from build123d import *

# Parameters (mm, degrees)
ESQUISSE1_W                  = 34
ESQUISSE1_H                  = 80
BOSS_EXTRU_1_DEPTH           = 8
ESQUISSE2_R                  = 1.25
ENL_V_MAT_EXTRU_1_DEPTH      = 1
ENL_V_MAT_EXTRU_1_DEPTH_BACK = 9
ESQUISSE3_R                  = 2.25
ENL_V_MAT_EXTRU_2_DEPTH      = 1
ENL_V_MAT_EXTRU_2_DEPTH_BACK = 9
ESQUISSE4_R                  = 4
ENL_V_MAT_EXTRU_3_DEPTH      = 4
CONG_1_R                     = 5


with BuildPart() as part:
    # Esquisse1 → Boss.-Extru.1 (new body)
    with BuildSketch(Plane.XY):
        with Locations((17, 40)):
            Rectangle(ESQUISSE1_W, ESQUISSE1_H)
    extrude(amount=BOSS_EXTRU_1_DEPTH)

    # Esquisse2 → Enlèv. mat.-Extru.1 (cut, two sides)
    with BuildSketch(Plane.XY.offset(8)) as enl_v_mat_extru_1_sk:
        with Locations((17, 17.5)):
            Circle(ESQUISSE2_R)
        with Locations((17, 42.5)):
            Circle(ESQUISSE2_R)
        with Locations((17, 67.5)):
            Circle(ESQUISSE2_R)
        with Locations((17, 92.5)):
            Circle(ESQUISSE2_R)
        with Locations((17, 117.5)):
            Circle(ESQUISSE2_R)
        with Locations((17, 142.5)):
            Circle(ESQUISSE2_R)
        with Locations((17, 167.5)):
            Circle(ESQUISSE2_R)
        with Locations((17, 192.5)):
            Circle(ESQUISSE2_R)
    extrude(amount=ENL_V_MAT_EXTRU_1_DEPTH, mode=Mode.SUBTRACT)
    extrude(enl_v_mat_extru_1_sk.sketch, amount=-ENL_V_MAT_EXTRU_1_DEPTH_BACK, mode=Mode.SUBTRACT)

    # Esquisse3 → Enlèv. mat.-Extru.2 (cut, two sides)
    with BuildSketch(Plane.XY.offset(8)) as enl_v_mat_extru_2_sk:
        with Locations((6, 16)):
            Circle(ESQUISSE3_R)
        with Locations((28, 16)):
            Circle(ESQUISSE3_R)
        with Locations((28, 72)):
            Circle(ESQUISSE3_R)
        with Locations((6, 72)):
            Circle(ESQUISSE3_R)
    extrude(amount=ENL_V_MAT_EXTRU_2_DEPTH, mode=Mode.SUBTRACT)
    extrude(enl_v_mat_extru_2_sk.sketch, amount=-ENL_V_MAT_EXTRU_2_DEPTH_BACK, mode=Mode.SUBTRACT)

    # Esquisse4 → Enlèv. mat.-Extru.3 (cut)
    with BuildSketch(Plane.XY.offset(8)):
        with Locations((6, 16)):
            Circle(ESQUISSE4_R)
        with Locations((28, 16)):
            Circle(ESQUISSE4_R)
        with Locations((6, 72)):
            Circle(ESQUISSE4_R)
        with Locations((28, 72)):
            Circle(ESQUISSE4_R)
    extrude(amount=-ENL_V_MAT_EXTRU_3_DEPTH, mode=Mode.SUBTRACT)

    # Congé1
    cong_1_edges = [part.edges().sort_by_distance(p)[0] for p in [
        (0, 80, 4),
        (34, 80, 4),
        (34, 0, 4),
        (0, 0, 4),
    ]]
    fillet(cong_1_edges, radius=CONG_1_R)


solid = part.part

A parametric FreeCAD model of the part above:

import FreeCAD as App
import Part
import Sketcher
from FreeCAD import Vector


def edges_at(feature, points):
    """Names of the edges that pass closest to the given points."""
    edges = feature.Shape.Edges
    near = lambda p: min(range(len(edges)), key=lambda i: edges[i].distToShape(Part.Vertex(*p))[0])
    return sorted({f"Edge{near(p) + 1}" for p in points})

doc = App.newDocument("Part")
body = doc.addObject("PartDesign::Body", "Body")

# Sketch on XY plane
sketch1 = doc.addObject("Sketcher::SketchObject", "Sketch")
body.addObject(sketch1)
sketch1.AttachmentSupport = (doc.XY_Plane, [""])
sketch1.MapMode = "FlatFace"
sketch1.addGeometry(Part.LineSegment(Vector(0, 80, 0), Vector(0, 0, 0)), False)
sketch1.addGeometry(Part.LineSegment(Vector(0, 0, 0), Vector(34, 0, 0)), False)
sketch1.addGeometry(Part.LineSegment(Vector(34, 0, 0), Vector(34, 80, 0)), False)
sketch1.addGeometry(Part.LineSegment(Vector(34, 80, 0), Vector(0, 80, 0)), False)
sketch1.addConstraint(Sketcher.Constraint("Coincident", 0, 2, 1, 1))
sketch1.addConstraint(Sketcher.Constraint("Coincident", 1, 2, 2, 1))
sketch1.addConstraint(Sketcher.Constraint("Coincident", 2, 2, 3, 1))
sketch1.addConstraint(Sketcher.Constraint("Coincident", 3, 2, 0, 1))
sketch1.addConstraint(Sketcher.Constraint("Vertical", 0))
sketch1.addConstraint(Sketcher.Constraint("Horizontal", 1))
sketch1.addConstraint(Sketcher.Constraint("Vertical", 2))
sketch1.addConstraint(Sketcher.Constraint("Horizontal", 3))
sketch1.addConstraint(Sketcher.Constraint("Coincident", 0, 2, -1, 1))
sketch1.addConstraint(Sketcher.Constraint("DistanceX", 1, 1, 1, 2, 34.0))
sketch1.addConstraint(Sketcher.Constraint("DistanceY", 0, 2, 0, 1, 80.0))
pad1 = doc.addObject("PartDesign::Pad", "Pad")
body.addObject(pad1)
pad1.Profile = sketch1
pad1.Length = 8

# Sketch on XY plane
sketch2 = doc.addObject("Sketcher::SketchObject", "Sketch001")
body.addObject(sketch2)
sketch2.AttachmentSupport = (doc.XY_Plane, [""])
sketch2.MapMode = "FlatFace"
sketch2.AttachmentOffset = App.Placement(Vector(0, 0, 8), App.Rotation())
sketch2.addGeometry(Part.Circle(Vector(17, 17.5, 0), Vector(0, 0, 1), 1.25), False)
sketch2.addGeometry(Part.Circle(Vector(17, 42.5, 0), Vector(0, 0, 1), 1.25), False)
sketch2.addGeometry(Part.Circle(Vector(17, 67.5, 0), Vector(0, 0, 1), 1.25), False)
sketch2.addGeometry(Part.Circle(Vector(17, 92.5, 0), Vector(0, 0, 1), 1.25), False)
sketch2.addGeometry(Part.Circle(Vector(17, 117.5, 0), Vector(0, 0, 1), 1.25), False)
sketch2.addGeometry(Part.Circle(Vector(17, 142.5, 0), Vector(0, 0, 1), 1.25), False)
sketch2.addGeometry(Part.Circle(Vector(17, 167.5, 0), Vector(0, 0, 1), 1.25), False)
sketch2.addGeometry(Part.Circle(Vector(17, 192.5, 0), Vector(0, 0, 1), 1.25), False)
sketch2.addConstraint(Sketcher.Constraint("Equal", 0, 1))
sketch2.addConstraint(Sketcher.Constraint("Equal", 1, 2))
sketch2.addConstraint(Sketcher.Constraint("Equal", 2, 3))
sketch2.addConstraint(Sketcher.Constraint("Equal", 3, 4))
sketch2.addConstraint(Sketcher.Constraint("Equal", 4, 5))
sketch2.addConstraint(Sketcher.Constraint("Equal", 5, 6))
sketch2.addConstraint(Sketcher.Constraint("Equal", 6, 7))
sketch2.addConstraint(Sketcher.Constraint("Vertical", 0, 3, 1, 3))
sketch2.addConstraint(Sketcher.Constraint("Vertical", 1, 3, 2, 3))
sketch2.addConstraint(Sketcher.Constraint("Vertical", 2, 3, 3, 3))
sketch2.addConstraint(Sketcher.Constraint("Vertical", 3, 3, 4, 3))
sketch2.addConstraint(Sketcher.Constraint("Vertical", 4, 3, 5, 3))
sketch2.addConstraint(Sketcher.Constraint("Vertical", 5, 3, 6, 3))
sketch2.addConstraint(Sketcher.Constraint("Vertical", 6, 3, 7, 3))
sketch2.addConstraint(Sketcher.Constraint("Diameter", 0, 2.5))
sketch2.addConstraint(Sketcher.Constraint("DistanceX", -1, 1, 0, 3, 17.0))
sketch2.addConstraint(Sketcher.Constraint("DistanceY", 0, 3, 1, 3, 25.0))
sketch2.addConstraint(Sketcher.Constraint("DistanceY", 1, 3, 2, 3, 25.0))
sketch2.addConstraint(Sketcher.Constraint("DistanceY", 2, 3, 3, 3, 25.0))
sketch2.addConstraint(Sketcher.Constraint("DistanceY", 3, 3, 4, 3, 25.0))
sketch2.addConstraint(Sketcher.Constraint("DistanceY", 4, 3, 5, 3, 25.0))
sketch2.addConstraint(Sketcher.Constraint("DistanceY", 5, 3, 6, 3, 25.0))
sketch2.addConstraint(Sketcher.Constraint("DistanceY", 6, 3, 7, 3, 25.0))
sketch2.addConstraint(Sketcher.Constraint("DistanceY", -1, 1, 0, 3, 17.5))
pocket1 = doc.addObject("PartDesign::Pocket", "Pocket")
body.addObject(pocket1)
pocket1.Profile = sketch2
pocket1.Type = "ThroughAll"
pocket1.Midplane = True

# Sketch on XY plane
sketch3 = doc.addObject("Sketcher::SketchObject", "Sketch002")
body.addObject(sketch3)
sketch3.AttachmentSupport = (doc.XY_Plane, [""])
sketch3.MapMode = "FlatFace"
sketch3.AttachmentOffset = App.Placement(Vector(0, 0, 8), App.Rotation())
sketch3.addGeometry(Part.Circle(Vector(6, 16, 0), Vector(0, 0, 1), 2.25), False)
sketch3.addGeometry(Part.Circle(Vector(28, 16, 0), Vector(0, 0, 1), 2.25), False)
sketch3.addGeometry(Part.Circle(Vector(28, 72, 0), Vector(0, 0, 1), 2.25), False)
sketch3.addGeometry(Part.Circle(Vector(6, 72, 0), Vector(0, 0, 1), 2.25), False)
sketch3.addConstraint(Sketcher.Constraint("Equal", 0, 1))
sketch3.addConstraint(Sketcher.Constraint("Equal", 1, 2))
sketch3.addConstraint(Sketcher.Constraint("Equal", 2, 3))
sketch3.addConstraint(Sketcher.Constraint("Horizontal", 0, 3, 1, 3))
sketch3.addConstraint(Sketcher.Constraint("Horizontal", 2, 3, 3, 3))
sketch3.addConstraint(Sketcher.Constraint("Vertical", 1, 3, 2, 3))
sketch3.addConstraint(Sketcher.Constraint("Vertical", 0, 3, 3, 3))
sketch3.addConstraint(Sketcher.Constraint("Diameter", 0, 4.5))
sketch3.addConstraint(Sketcher.Constraint("DistanceX", -1, 1, 0, 3, 6.0))
sketch3.addConstraint(Sketcher.Constraint("DistanceY", -1, 1, 0, 3, 16.0))
sketch3.addConstraint(Sketcher.Constraint("DistanceX", -1, 1, 1, 3, 28.0))
sketch3.addConstraint(Sketcher.Constraint("DistanceY", -1, 1, 2, 3, 72.0))
pocket2 = doc.addObject("PartDesign::Pocket", "Pocket001")
body.addObject(pocket2)
pocket2.Profile = sketch3
pocket2.Type = "ThroughAll"
pocket2.Midplane = True

# Sketch on XY plane
sketch4 = doc.addObject("Sketcher::SketchObject", "Sketch003")
body.addObject(sketch4)
sketch4.AttachmentSupport = (doc.XY_Plane, [""])
sketch4.MapMode = "FlatFace"
sketch4.AttachmentOffset = App.Placement(Vector(0, 0, 8), App.Rotation())
sketch4.addGeometry(Part.Circle(Vector(6, 16, 0), Vector(0, 0, 1), 4), False)
sketch4.addGeometry(Part.Circle(Vector(28, 16, 0), Vector(0, 0, 1), 4), False)
sketch4.addGeometry(Part.Circle(Vector(6, 72, 0), Vector(0, 0, 1), 4), False)
sketch4.addGeometry(Part.Circle(Vector(28, 72, 0), Vector(0, 0, 1), 4), False)
sketch4.addConstraint(Sketcher.Constraint("Equal", 0, 1))
sketch4.addConstraint(Sketcher.Constraint("Equal", 1, 2))
sketch4.addConstraint(Sketcher.Constraint("Equal", 2, 3))
sketch4.addConstraint(Sketcher.Constraint("Horizontal", 0, 3, 1, 3))
sketch4.addConstraint(Sketcher.Constraint("Horizontal", 2, 3, 3, 3))
sketch4.addConstraint(Sketcher.Constraint("Vertical", 0, 3, 2, 3))
sketch4.addConstraint(Sketcher.Constraint("Vertical", 1, 3, 3, 3))
sketch4.addConstraint(Sketcher.Constraint("Diameter", 0, 8.0))
sketch4.addConstraint(Sketcher.Constraint("DistanceX", -1, 1, 0, 3, 6.0))
sketch4.addConstraint(Sketcher.Constraint("DistanceY", -1, 1, 0, 3, 16.0))
sketch4.addConstraint(Sketcher.Constraint("DistanceX", -1, 1, 1, 3, 28.0))
sketch4.addConstraint(Sketcher.Constraint("DistanceY", -1, 1, 2, 3, 72.0))
pocket3 = doc.addObject("PartDesign::Pocket", "Pocket002")
body.addObject(pocket3)
pocket3.Profile = sketch4
pocket3.Length = 4
doc.recompute()

fillet = doc.addObject("PartDesign::Fillet", "Fillet")
body.addObject(fillet)
fillet.Base = (pocket3, edges_at(pocket3, [
    (0, 80, 4),
    (34, 80, 4),
    (34, 0, 4),
    (0, 0, 4),
]))
fillet.Radius = 5

doc.recompute()
